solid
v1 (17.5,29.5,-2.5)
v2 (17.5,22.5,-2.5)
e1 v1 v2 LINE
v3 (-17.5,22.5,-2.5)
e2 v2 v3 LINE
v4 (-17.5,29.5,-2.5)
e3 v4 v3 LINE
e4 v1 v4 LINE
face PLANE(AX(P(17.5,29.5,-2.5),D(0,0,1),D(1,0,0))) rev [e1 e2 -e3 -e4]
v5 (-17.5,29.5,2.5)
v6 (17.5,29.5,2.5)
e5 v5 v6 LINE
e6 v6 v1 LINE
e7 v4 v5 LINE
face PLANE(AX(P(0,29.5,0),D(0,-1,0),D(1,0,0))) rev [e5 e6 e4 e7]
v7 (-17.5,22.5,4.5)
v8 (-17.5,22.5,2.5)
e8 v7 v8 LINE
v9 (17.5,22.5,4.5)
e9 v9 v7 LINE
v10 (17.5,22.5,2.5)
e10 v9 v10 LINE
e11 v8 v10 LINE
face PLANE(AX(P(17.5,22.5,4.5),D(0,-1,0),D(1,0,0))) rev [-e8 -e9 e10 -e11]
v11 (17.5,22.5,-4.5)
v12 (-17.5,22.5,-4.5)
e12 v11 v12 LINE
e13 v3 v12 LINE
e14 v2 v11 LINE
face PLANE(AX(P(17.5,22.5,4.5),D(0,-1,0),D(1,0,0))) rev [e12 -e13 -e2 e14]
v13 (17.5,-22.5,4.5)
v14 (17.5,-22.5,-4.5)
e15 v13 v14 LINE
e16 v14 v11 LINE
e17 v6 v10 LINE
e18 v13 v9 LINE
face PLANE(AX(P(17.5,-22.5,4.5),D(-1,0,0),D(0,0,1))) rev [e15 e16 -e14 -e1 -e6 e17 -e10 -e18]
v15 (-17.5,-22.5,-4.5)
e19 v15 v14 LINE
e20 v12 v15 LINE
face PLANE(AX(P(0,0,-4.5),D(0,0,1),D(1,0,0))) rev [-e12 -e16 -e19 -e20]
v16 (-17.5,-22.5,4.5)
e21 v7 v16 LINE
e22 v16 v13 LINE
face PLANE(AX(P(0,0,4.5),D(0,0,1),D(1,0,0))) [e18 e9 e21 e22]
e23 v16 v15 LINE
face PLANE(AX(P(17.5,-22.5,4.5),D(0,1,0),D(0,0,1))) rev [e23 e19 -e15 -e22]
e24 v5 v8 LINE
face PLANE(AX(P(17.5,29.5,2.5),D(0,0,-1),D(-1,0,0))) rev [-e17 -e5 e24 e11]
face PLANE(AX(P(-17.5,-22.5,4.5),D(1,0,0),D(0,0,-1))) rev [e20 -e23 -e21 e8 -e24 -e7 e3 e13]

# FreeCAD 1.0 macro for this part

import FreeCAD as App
import Part
import Sketcher
Q = App.Units.Quantity


def add_polygon(sketch, points):
    """Adds a closed chain of lines whose ends are joined by coincident constraints."""
    first, n = sketch.GeometryCount, len(points)
    for a, b in zip(points, points[1:] + points[:1]):
        sketch.addGeometry(Part.LineSegment(App.Vector(*a, 0), App.Vector(*b, 0)), False)
    for i in range(n):
        sketch.addConstraint(Sketcher.Constraint("Coincident", first + i, 2, first + (i + 1) % n, 1))

doc = App.newDocument("Part")
params = doc.addObject("Spreadsheet::Sheet", "Params")
for row, (alias, value) in enumerate([
    ("sketch1_width", "35 mm"),
    ("sketch1_height", "45 mm"),
    ("pad1_length", "9 mm"),
    ("sketch2_width", "35 mm"),
    ("sketch2_height", "5 mm"),
    ("pad2_length", "7 mm"),
], start=1):
    params.set(f"A{row}", alias)
    params.set(f"B{row}", "=" + value)
    params.setAlias(f"B{row}", alias)

body = doc.addObject("PartDesign::Body", "Body")

# Sketch on XY plane
sketch1 = doc.addObject("Sketcher::SketchObject", "Sketch")
body.addObject(sketch1)
sketch1.AttachmentSupport = (doc.XY_Plane, [""])
sketch1.MapMode = "FlatFace"
add_polygon(sketch1, [(-17.5, 22.5), (-17.5, -22.5), (17.5, -22.5), (17.5, 22.5)])  # lines 0-3
sketch1.addConstraint(Sketcher.Constraint("Vertical", 0))
sketch1.addConstraint(Sketcher.Constraint("Horizontal", 1))
sketch1.addConstraint(Sketcher.Constraint("Vertical", 2))
sketch1.addConstraint(Sketcher.Constraint("Horizontal", 3))
sketch1.addConstraint(Sketcher.Constraint("Symmetric", 0, 2, 2, 2, -1, 1))
sketch1.addConstraint(Sketcher.Constraint("DistanceX", 1, 1, 1, 2, Q("35 mm")))
sketch1.addConstraint(Sketcher.Constraint("DistanceY", 0, 2, 0, 1, Q("45 mm")))
sketch1.setExpression("Constraints[9]", "Params.sketch1_width")
sketch1.setExpression("Constraints[10]", "Params.sketch1_height")
pad1 = doc.addObject("PartDesign::Pad", "Pad")
body.addObject(pad1)
pad1.Profile = sketch1
pad1.setExpression("Length", "Params.pad1_length")
pad1.Midplane = True

# Sketch on XZ plane
sketch2 = doc.addObject("Sketcher::SketchObject", "Sketch001")
body.addObject(sketch2)
sketch2.AttachmentSupport = (doc.XZ_Plane, [""])
sketch2.MapMode = "FlatFace"
sketch2.AttachmentOffset = App.Placement(App.Vector(0, 0, -22.5), App.Rotation())
add_polygon(sketch2, [(-17.5, -2.5), (-17.5, 2.5), (17.5, 2.5), (17.5, -2.5)])  # lines 0-3
sketch2.addConstraint(Sketcher.Constraint("Vertical", 0))
sketch2.addConstraint(Sketcher.Constraint("Horizontal", 1))
sketch2.addConstraint(Sketcher.Constraint("Vertical", 2))
sketch2.addConstraint(Sketcher.Constraint("Horizontal", 3))
sketch2.addConstraint(Sketcher.Constraint("Symmetric", 0, 2, 2, 2, -1, 1))
sketch2.addConstraint(Sketcher.Constraint("DistanceX", 1, 1, 1, 2, Q("35 mm")))
sketch2.addConstraint(Sketcher.Constraint("DistanceY", 0, 1, 0, 2, Q("5 mm")))
sketch2.setExpression("Constraints[9]", "Params.sketch2_width")
sketch2.setExpression("Constraints[10]", "Params.sketch2_height")
pad2 = doc.addObject("PartDesign::Pad", "Pad001")
body.addObject(pad2)
pad2.Profile = sketch2
pad2.setExpression("Length", "Params.pad2_length")
pad2.Reversed = True

doc.recompute()
